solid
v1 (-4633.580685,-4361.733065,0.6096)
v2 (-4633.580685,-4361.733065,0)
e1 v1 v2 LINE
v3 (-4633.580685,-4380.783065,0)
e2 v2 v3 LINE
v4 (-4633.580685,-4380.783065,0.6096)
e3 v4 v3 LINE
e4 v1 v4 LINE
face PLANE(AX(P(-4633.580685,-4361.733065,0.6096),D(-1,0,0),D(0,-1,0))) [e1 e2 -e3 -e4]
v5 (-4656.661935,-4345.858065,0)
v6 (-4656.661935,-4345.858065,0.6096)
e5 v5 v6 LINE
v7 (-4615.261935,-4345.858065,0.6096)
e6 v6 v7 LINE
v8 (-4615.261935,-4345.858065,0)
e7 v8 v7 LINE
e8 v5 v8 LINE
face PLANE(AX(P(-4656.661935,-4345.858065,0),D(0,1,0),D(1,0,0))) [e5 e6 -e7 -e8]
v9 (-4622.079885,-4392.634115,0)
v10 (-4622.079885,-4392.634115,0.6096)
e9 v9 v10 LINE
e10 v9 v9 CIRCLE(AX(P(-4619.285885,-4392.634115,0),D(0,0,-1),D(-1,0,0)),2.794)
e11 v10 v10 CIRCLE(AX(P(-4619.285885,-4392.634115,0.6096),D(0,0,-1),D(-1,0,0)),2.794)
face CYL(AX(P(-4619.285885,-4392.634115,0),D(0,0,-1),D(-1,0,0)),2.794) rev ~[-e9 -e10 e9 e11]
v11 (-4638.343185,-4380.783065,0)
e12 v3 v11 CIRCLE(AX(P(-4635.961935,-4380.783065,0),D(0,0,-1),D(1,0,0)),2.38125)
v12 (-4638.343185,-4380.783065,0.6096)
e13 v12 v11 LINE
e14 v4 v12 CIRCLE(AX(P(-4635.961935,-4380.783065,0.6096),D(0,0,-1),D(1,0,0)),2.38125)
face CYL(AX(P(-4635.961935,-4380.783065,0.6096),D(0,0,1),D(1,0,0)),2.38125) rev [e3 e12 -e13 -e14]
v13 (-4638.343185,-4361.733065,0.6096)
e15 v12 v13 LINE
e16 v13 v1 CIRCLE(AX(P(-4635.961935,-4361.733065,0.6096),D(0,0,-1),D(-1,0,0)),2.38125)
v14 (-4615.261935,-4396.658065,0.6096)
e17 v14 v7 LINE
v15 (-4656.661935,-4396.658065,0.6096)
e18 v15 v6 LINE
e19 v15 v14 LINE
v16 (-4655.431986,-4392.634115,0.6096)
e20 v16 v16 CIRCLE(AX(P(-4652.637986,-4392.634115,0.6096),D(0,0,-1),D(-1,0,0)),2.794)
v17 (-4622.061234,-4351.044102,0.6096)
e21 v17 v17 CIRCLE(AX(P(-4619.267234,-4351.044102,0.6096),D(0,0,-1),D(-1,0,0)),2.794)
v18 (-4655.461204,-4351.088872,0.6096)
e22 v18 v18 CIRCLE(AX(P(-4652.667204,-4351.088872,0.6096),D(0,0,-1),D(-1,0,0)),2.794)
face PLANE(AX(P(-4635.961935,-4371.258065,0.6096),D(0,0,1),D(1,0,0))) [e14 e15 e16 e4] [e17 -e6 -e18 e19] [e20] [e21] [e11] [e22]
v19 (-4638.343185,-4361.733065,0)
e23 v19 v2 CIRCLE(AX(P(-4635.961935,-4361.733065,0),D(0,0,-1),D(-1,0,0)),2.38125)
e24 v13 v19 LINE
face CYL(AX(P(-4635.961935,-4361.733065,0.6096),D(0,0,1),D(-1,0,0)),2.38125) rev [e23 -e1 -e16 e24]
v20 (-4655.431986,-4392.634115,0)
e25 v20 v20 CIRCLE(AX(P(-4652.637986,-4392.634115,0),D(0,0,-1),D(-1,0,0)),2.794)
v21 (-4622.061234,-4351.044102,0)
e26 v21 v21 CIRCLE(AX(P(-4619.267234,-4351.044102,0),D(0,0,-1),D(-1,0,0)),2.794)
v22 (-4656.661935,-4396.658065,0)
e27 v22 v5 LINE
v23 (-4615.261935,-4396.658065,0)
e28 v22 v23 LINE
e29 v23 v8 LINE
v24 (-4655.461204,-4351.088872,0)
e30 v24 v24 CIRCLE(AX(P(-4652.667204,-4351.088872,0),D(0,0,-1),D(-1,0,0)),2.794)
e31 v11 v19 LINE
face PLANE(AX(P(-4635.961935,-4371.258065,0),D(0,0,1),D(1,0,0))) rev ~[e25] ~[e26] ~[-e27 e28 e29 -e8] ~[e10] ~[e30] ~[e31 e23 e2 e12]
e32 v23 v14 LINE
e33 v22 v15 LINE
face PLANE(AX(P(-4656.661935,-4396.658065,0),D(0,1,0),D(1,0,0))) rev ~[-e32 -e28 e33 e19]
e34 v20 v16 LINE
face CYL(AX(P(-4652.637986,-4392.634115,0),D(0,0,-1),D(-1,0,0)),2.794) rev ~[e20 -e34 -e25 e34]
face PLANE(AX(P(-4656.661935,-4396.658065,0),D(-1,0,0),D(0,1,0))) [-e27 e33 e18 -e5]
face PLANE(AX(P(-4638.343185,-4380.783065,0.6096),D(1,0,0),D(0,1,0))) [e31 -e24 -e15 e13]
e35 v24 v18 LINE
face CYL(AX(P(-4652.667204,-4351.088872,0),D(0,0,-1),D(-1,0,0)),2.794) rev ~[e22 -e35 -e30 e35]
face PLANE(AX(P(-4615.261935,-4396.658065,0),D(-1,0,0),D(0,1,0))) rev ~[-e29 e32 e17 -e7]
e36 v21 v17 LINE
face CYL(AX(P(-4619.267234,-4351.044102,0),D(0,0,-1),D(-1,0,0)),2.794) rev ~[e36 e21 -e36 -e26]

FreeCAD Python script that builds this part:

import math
import FreeCAD as App
import Part
import Sketcher

V = App.Vector
Q = App.Units.Quantity

doc = App.newDocument("Part")
body = doc.addObject("PartDesign::Body", "Body")

# Sketch on XY plane
sketch1 = body.newObject("Sketcher::SketchObject", "Sketch")
sketch1.AttachmentSupport = (doc.getObject("XY_Plane"), [""])
sketch1.MapMode = "FlatFace"
sketch1.addGeometry(Part.LineSegment(V(-4657, -4346, 0), V(-4657, -4397, 0)), False)
sketch1.addGeometry(Part.LineSegment(V(-4657, -4397, 0), V(-4615, -4397, 0)), False)
sketch1.addGeometry(Part.LineSegment(V(-4615, -4397, 0), V(-4615, -4346, 0)), False)
sketch1.addGeometry(Part.LineSegment(V(-4615, -4346, 0), V(-4657, -4346, 0)), False)
sketch1.addConstraint(Sketcher.Constraint("Coincident", 0, 2, 1, 1))
sketch1.addConstraint(Sketcher.Constraint("Coincident", 1, 2, 2, 1))
sketch1.addConstraint(Sketcher.Constraint("Coincident", 2, 2, 3, 1))
sketch1.addConstraint(Sketcher.Constraint("Coincident", 3, 2, 0, 1))
sketch1.addConstraint(Sketcher.Constraint("Vertical", 0))
sketch1.addConstraint(Sketcher.Constraint("Horizontal", 1))
sketch1.addConstraint(Sketcher.Constraint("Vertical", 2))
sketch1.addConstraint(Sketcher.Constraint("Horizontal", 3))
sketch1.addConstraint(Sketcher.Constraint("DistanceY", 0, 2, 0, 1, Q("2 in")))
sketch1.addConstraint(Sketcher.Constraint("DistanceX", 1, 1, 1, 2, 41.4))
sketch1.addConstraint(Sketcher.Constraint("DistanceX", 0, 2, -1, 1, 4656.661935))
sketch1.addConstraint(Sketcher.Constraint("DistanceY", 0, 2, -1, 1, 4396.658065))
pad1 = body.newObject("PartDesign::Pad", "Pad")
pad1.Profile = sketch1
pad1.Length = Q("0.024 in")

# Sketch on XY plane
sketch2 = body.newObject("Sketcher::SketchObject", "Sketch001")
sketch2.AttachmentSupport = (doc.getObject("XY_Plane"), [""])
sketch2.MapMode = "FlatFace"
sketch2.AttachmentOffset = App.Placement(V(0, 0, 0.024 * 25.4), App.Rotation())
sketch2.addGeometry(Part.LineSegment(V(-4638.3, -4361.7, 0), V(-4638.3, -4380.8, 0)), False)
sketch2.addGeometry(Part.ArcOfCircle(Part.Circle(V(-4636, -4380.8, 0), V(0, 0, 1), 2.4), math.radians(180), math.radians(360)), False)
sketch2.addGeometry(Part.LineSegment(V(-4633.6, -4380.8, 0), V(-4633.6, -4361.7, 0)), False)
sketch2.addGeometry(Part.ArcOfCircle(Part.Circle(V(-4636, -4361.7, 0), V(0, 0, 1), 2.4), math.radians(0), math.radians(180)), False)
sketch2.addConstraint(Sketcher.Constraint("Tangent", 0, 2, 1, 1))
sketch2.addConstraint(Sketcher.Constraint("Tangent", 1, 2, 2, 1))
sketch2.addConstraint(Sketcher.Constraint("Tangent", 2, 2, 3, 1))
sketch2.addConstraint(Sketcher.Constraint("Tangent", 3, 2, 0, 1))
sketch2.addConstraint(Sketcher.Constraint("Vertical", 0))
sketch2.addConstraint(Sketcher.Constraint("Vertical", 2))
sketch2.addConstraint(Sketcher.Constraint("Radius", 1, Q("0.09375 in")))
sketch2.addConstraint(Sketcher.Constraint("DistanceY", 0, 2, 0, 1, Q("0.75 in")))
sketch2.addConstraint(Sketcher.Constraint("DistanceX", 1, 3, -1, 1, 4635.961935))
sketch2.addConstraint(Sketcher.Constraint("DistanceY", 1, 3, -1, 1, 4380.783065))
pocket1 = body.newObject("PartDesign::Pocket", "Pocket")
pocket1.Profile = sketch2
pocket1.Length = Q("0.024 in")

# Sketch on XY plane
sketch3 = body.newObject("Sketcher::SketchObject", "Sketch002")
sketch3.AttachmentSupport = (doc.getObject("XY_Plane"), [""])
sketch3.MapMode = "FlatFace"
sketch3.addGeometry(Part.Circle(V(-4619.3, -4351, 0), V(0, 0, 1), 2.8), False)
sketch3.addGeometry(Part.Circle(V(-4652.7, -4351.1, 0), V(0, 0, 1), 2.8), False)
sketch3.addGeometry(Part.Circle(V(-4619.3, -4392.6, 0), V(0, 0, 1), 2.8), False)
sketch3.addGeometry(Part.Circle(V(-4652.6, -4392.6, 0), V(0, 0, 1), 2.8), False)
sketch3.addConstraint(Sketcher.Constraint("Equal", 0, 1))
sketch3.addConstraint(Sketcher.Constraint("Equal", 1, 2))
sketch3.addConstraint(Sketcher.Constraint("Equal", 2, 3))
sketch3.addConstraint(Sketcher.Constraint("Horizontal", 2, 3, 3, 3))
sketch3.addConstraint(Sketcher.Constraint("Diameter", 0, Q("0.22 in")))
sketch3.addConstraint(Sketcher.Constraint("DistanceY", 0, 3, -1, 1, 4351.044102))
sketch3.addConstraint(Sketcher.Constraint("DistanceX", 3, 3, 2, 3, 33.352102))
sketch3.addConstraint(Sketcher.Constraint("DistanceY", 1, 3, -1, 1, 4351.088872))
sketch3.addConstraint(Sketcher.Constraint("DistanceX", 1, 3, 0, 3, 33.39997))
sketch3.addConstraint(Sketcher.Constraint("DistanceX", 2, 3, 0, 3, 0.01865))
sketch3.addConstraint(Sketcher.Constraint("DistanceX", 0, 3, -1, 1, 4619.267234))
sketch3.addConstraint(Sketcher.Constraint("DistanceY", 2, 3, -1, 1, 4392.634115))
pocket2 = body.newObject("PartDesign::Pocket", "Pocket001")
pocket2.Profile = sketch3
pocket2.Length = Q("0.024 in")
pocket2.Reversed = True

doc.recompute()
